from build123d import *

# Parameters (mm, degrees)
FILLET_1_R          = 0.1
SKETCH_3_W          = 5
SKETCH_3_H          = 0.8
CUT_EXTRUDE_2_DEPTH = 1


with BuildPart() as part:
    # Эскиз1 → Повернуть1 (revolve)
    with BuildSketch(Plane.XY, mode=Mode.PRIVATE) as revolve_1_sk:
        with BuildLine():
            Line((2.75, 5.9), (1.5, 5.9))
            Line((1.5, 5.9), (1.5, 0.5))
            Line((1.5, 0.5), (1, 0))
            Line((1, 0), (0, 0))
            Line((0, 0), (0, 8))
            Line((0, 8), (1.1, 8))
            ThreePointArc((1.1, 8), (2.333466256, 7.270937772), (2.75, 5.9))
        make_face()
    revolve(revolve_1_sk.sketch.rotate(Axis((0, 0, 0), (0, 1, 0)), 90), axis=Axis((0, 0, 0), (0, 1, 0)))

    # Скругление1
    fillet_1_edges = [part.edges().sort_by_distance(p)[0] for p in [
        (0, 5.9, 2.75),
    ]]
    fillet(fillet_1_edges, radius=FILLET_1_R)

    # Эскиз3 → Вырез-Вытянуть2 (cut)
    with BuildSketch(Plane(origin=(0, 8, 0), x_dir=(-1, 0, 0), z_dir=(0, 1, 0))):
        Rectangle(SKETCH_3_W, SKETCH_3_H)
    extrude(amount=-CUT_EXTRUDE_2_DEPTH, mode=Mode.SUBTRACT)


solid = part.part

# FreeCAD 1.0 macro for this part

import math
import FreeCAD as App
import Part
import Sketcher
from FreeCAD import Vector
Q = App.Units.Quantity


def edges_at(feature, points):
    """Names of the edges that pass closest to the given points."""
    edges = feature.Shape.Edges
    near = lambda p: min(range(len(edges)), key=lambda i: edges[i].distToShape(Part.Vertex(*p))[0])
    return sorted({f"Edge{near(p) + 1}" for p in points})


def add_polygon(sketch, points):
    """Adds a closed chain of lines whose ends are joined by coincident constraints."""
    first, n = sketch.GeometryCount, len(points)
    for a, b in zip(points, points[1:] + points[:1]):
        sketch.addGeometry(Part.LineSegment(App.Vector(*a, 0), App.Vector(*b, 0)), False)
    for i in range(n):
        sketch.addConstraint(Sketcher.Constraint("Coincident", first + i, 2, first + (i + 1) % n, 1))

doc = App.newDocument("Part")
body = doc.addObject("PartDesign::Body", "Body")

# Sketch on XY plane
sketch1 = doc.addObject("Sketcher::SketchObject", "Sketch")
body.addObject(sketch1)
sketch1.AttachmentSupport = (doc.XY_Plane, [""])
sketch1.MapMode = "FlatFace"
sketch1.addGeometry([
    Part.LineSegment(Vector(1.5, 5.9, 0), Vector(2.8, 5.9, 0)),  # 0
    Part.ArcOfCircle(Part.Circle(Vector(0.8, 6.1, 0), Vector(0, 0, 1), 2), math.radians(-4), math.radians(81)),  # 1
    Part.LineSegment(Vector(1.1, 8, 0), Vector(0, 8, 0)),  # 2
    Part.LineSegment(Vector(0, 8, 0), Vector(0, 0, 0)),  # 3
    Part.LineSegment(Vector(0, 0, 0), Vector(1, 0, 0)),  # 4
    Part.LineSegment(Vector(1, 0, 0), Vector(1.5, 0.5, 0)),  # 5
    Part.LineSegment(Vector(1.5, 0.5, 0), Vector(1.5, 5.9, 0)),  # 6
], False)
sketch1.addConstraint([
    Sketcher.Constraint("Coincident", 0, 2, 1, 1),
    Sketcher.Constraint("Coincident", 1, 2, 2, 1),
    Sketcher.Constraint("Coincident", 2, 2, 3, 1),
    Sketcher.Constraint("Coincident", 3, 2, 4, 1),
    Sketcher.Constraint("Coincident", 4, 2, 5, 1),
    Sketcher.Constraint("Coincident", 5, 2, 6, 1),
    Sketcher.Constraint("Coincident", 6, 2, 0, 1),
    Sketcher.Constraint("Horizontal", 0),
    Sketcher.Constraint("Horizontal", 2),
    Sketcher.Constraint("Vertical", 3),
    Sketcher.Constraint("Horizontal", 4),
    Sketcher.Constraint("Vertical", 6),
    Sketcher.Constraint("Coincident", 3, 2, -1, 1),
    Sketcher.Constraint("DistanceX", 4, 1, 4, 2, 1.0),
    Sketcher.Constraint("DistanceY", 3, 2, 3, 1, 8.0),
    Sketcher.Constraint("Angle", 5, Q("45 deg")),
    Sketcher.Constraint("DistanceX", 2, 2, 2, 1, 1.1),
    Sketcher.Constraint("DistanceY", 6, 1, 6, 2, 5.4),
    Sketcher.Constraint("DistanceX", 0, 1, 0, 2, 1.25),
    Sketcher.Constraint("DistanceY", -1, 1, 0, 2, 5.9),
    Sketcher.Constraint("Radius", 1, 1.976037),
])
revolution = doc.addObject("PartDesign::Revolution", "Revolution")
body.addObject(revolution)
revolution.Profile = sketch1
revolution.ReferenceAxis = (sketch1, ["V_Axis"])
revolution.Angle = 360
doc.recompute()

fillet = doc.addObject("PartDesign::Fillet", "Fillet")
body.addObject(fillet)
fillet.Base = (revolution, edges_at(revolution, [(0, 5.9, 2.75)]))
fillet.Radius = 0.1

# Sketch on XZ plane
sketch2 = doc.addObject("Sketcher::SketchObject", "Sketch001")
body.addObject(sketch2)
sketch2.AttachmentSupport = (doc.XZ_Plane, [""])
sketch2.MapMode = "FlatFace"
sketch2.AttachmentOffset = App.Placement(Vector(0, 0, -8), App.Rotation())
add_polygon(sketch2, [(2.5, 0.4), (2.5, -0.4), (-2.5, -0.4), (-2.5, 0.4)])  # lines 0-3
sketch2.addConstraint([
    Sketcher.Constraint("Vertical", 0),
    Sketcher.Constraint("Horizontal", 1),
    Sketcher.Constraint("Vertical", 2),
    Sketcher.Constraint("Horizontal", 3),
    Sketcher.Constraint("Symmetric", 0, 2, 2, 2, -1, 1),
    Sketcher.Constraint("DistanceX", 1, 2, 1, 1, 5.0),
    Sketcher.Constraint("DistanceY", 0, 2, 0, 1, 0.8),
])
pocket1 = doc.addObject("PartDesign::Pocket", "Pocket")
body.addObject(pocket1)
pocket1.Profile = sketch2
pocket1.Length = 1
pocket1.Reversed = True

doc.recompute()
